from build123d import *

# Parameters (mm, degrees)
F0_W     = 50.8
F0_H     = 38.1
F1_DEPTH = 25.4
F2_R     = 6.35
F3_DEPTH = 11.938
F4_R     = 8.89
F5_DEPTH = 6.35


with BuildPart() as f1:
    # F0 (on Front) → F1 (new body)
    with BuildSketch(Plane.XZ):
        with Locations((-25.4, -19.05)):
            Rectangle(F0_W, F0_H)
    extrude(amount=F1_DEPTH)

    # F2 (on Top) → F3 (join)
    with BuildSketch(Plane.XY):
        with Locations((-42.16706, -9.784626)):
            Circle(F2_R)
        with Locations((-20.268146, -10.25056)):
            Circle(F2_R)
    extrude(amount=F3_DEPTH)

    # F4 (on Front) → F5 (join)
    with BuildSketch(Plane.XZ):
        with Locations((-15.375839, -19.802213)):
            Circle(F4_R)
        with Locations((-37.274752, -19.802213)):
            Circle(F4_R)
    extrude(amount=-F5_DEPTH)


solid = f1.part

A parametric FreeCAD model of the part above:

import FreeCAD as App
import Part
import Sketcher
from FreeCAD import Vector
Q = App.Units.Quantity

doc = App.newDocument("Part")
body = doc.addObject("PartDesign::Body", "Body")

# Sketch on XZ plane
sketch1 = body.newObject("Sketcher::SketchObject", "Sketch")
sketch1.AttachmentSupport = (doc.getObject("XZ_Plane"), [""])
sketch1.MapMode = "FlatFace"
sketch1.addGeometry([
    Part.LineSegment(Vector(-50.8, 0, 0), Vector(-50.8, -38.1, 0)),
    Part.LineSegment(Vector(-50.8, -38.1, 0), Vector(0, -38.1, 0)),
    Part.LineSegment(Vector(0, -38.1, 0), Vector(0, 0, 0)),
    Part.LineSegment(Vector(0, 0, 0), Vector(-50.8, 0, 0)),
], False)
sketch1.addConstraint([
    Sketcher.Constraint("Coincident", 0, 2, 1, 1),
    Sketcher.Constraint("Coincident", 1, 2, 2, 1),
    Sketcher.Constraint("Coincident", 2, 2, 3, 1),
    Sketcher.Constraint("Coincident", 3, 2, 0, 1),
    Sketcher.Constraint("Vertical", 0),
    Sketcher.Constraint("Horizontal", 1),
    Sketcher.Constraint("Vertical", 2),
    Sketcher.Constraint("Horizontal", 3),
    Sketcher.Constraint("Coincident", 2, 2, -1, 1),
    Sketcher.Constraint("DistanceX", 1, 1, 1, 2, Q("2 in")),
    Sketcher.Constraint("DistanceY", 0, 2, 0, 1, Q("1.5 in")),
])
pad1 = body.newObject("PartDesign::Pad", "Pad")
pad1.Profile = sketch1
pad1.Length = Q("1 in")

# Sketch on XY plane
sketch2 = body.newObject("Sketcher::SketchObject", "Sketch001")
sketch2.AttachmentSupport = (doc.getObject("XY_Plane"), [""])
sketch2.MapMode = "FlatFace"
sketch2.addGeometry([
    Part.Circle(Vector(-42.16706, -9.784626, 0), Vector(0, 0, 1), 6.35),
    Part.Circle(Vector(-20.268146, -10.25056, 0), Vector(0, 0, 1), 6.35),
], False)
sketch2.addConstraint([
    Sketcher.Constraint("Equal", 0, 1),
    Sketcher.Constraint("Diameter", 0, Q("0.5 in")),
    Sketcher.Constraint("DistanceX", 0, 3, -1, 1, Q("42.16706 mm")),
    Sketcher.Constraint("DistanceY", 1, 3, -1, 1, Q("10.25056 mm")),
    Sketcher.Constraint("DistanceY", 0, 3, -1, 1, Q("9.784626 mm")),
    Sketcher.Constraint("DistanceX", 1, 3, -1, 1, Q("20.268146 mm")),
])
pad2 = body.newObject("PartDesign::Pad", "Pad001")
pad2.Profile = sketch2
pad2.Length = Q("0.47 in")

# Sketch on XZ plane
sketch3 = body.newObject("Sketcher::SketchObject", "Sketch002")
sketch3.AttachmentSupport = (doc.getObject("XZ_Plane"), [""])
sketch3.MapMode = "FlatFace"
sketch3.addGeometry([
    Part.Circle(Vector(-15.375839, -19.802213, 0), Vector(0, 0, 1), 8.89),
    Part.Circle(Vector(-37.274752, -19.802213, 0), Vector(0, 0, 1), 8.89),
], False)
sketch3.addConstraint([
    Sketcher.Constraint("Equal", 0, 1),
    Sketcher.Constraint("Horizontal", 0, 3, 1, 3),
    Sketcher.Constraint("Diameter", 0, Q("0.7 in")),
    Sketcher.Constraint("DistanceX", 0, 3, -1, 1, Q("15.375839 mm")),
    Sketcher.Constraint("DistanceY", 0, 3, -1, 1, Q("19.802213 mm")),
    Sketcher.Constraint("DistanceX", 1, 3, -1, 1, Q("37.274752 mm")),
])
pad3 = body.newObject("PartDesign::Pad", "Pad002")
pad3.Profile = sketch3
pad3.Length = Q("0.25 in")
pad3.Reversed = True

doc.recompute()
